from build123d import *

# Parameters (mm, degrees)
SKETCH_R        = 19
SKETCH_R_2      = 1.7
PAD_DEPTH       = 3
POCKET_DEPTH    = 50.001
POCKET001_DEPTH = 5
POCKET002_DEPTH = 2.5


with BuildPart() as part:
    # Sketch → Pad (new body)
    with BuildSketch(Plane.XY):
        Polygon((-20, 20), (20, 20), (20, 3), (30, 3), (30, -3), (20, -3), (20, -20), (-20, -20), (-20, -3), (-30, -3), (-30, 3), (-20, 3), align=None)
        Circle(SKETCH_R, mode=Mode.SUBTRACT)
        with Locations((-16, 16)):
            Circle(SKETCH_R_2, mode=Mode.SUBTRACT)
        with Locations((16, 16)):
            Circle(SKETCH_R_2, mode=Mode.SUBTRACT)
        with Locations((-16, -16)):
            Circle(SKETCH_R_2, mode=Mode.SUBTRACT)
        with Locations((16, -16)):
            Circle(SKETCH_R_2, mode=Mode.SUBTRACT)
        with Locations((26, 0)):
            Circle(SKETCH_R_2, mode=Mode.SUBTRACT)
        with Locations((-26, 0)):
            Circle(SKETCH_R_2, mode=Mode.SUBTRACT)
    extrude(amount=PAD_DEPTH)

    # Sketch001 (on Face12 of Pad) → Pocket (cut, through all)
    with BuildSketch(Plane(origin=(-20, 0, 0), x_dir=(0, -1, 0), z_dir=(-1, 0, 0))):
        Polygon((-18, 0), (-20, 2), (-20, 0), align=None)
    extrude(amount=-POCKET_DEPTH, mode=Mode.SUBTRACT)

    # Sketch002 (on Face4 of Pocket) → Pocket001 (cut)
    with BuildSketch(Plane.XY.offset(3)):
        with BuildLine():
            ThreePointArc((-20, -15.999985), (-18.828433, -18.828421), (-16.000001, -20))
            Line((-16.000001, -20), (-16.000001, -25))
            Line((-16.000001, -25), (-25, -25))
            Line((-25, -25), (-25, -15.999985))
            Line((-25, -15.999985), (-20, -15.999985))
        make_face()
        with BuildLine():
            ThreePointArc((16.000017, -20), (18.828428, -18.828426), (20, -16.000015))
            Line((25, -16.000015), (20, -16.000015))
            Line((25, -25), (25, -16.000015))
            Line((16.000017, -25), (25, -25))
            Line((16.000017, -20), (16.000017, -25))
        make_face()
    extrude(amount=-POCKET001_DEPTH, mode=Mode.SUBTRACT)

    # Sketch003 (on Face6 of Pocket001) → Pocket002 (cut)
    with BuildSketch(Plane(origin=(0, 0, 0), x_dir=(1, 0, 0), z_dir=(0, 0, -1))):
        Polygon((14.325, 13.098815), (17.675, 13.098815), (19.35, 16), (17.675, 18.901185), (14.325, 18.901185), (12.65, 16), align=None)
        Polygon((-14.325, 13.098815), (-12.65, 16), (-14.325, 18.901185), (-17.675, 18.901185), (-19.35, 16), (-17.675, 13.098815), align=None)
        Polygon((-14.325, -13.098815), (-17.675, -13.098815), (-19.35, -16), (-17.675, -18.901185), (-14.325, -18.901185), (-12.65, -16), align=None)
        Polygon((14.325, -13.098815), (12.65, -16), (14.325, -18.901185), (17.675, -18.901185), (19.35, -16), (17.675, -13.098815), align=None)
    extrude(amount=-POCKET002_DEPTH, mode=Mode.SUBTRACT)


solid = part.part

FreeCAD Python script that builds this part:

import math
import FreeCAD as App
import Part
import Sketcher

V = App.Vector
Q = App.Units.Quantity

doc = App.newDocument("Part")
params = doc.addObject("Spreadsheet::Sheet", "Params")
for row, (alias, value) in enumerate([
    ("sketch1_diameter", "38 mm"),
    ("sketch1_diameter2", "3.4 mm"),
    ("sketch1_width", "40 mm"),
    ("sketch1_width2", "10 mm"),
    ("sketch1_height", "17 mm"),
    ("pad1_length", "3 mm"),
    ("sketch2_width", "2 mm"),
    ("sketch3_radius", "4 mm"),
    ("sketch3_width", "5 mm"),
    ("pocket2_length", "5 mm"),
    ("sketch4_width", "3.35 mm"),
    ("pocket3_length", "2.5 mm"),
], start=1):
    params.set(f"A{row}", alias)
    params.set(f"B{row}", "=" + value)
    params.setAlias(f"B{row}", alias)

body = doc.addObject("PartDesign::Body", "Body")

sketch1 = body.newObject("Sketcher::SketchObject", "Sketch")
sketch1.AttachmentSupport = (doc.getObject("XY_Plane"), [""])
sketch1.MapMode = "FlatFace"
sketch1.addGeometry([
    Part.LineSegment(V(20, 20, 0), V(-20, 20, 0)),
    Part.LineSegment(V(-20, 20, 0), V(-20, 3, 0)),
    Part.LineSegment(V(-20, 3, 0), V(-30, 3, 0)),
    Part.LineSegment(V(-30, 3, 0), V(-30, -3, 0)),
    Part.LineSegment(V(-30, -3, 0), V(-20, -3, 0)),
    Part.LineSegment(V(-20, -3, 0), V(-20, -20, 0)),
    Part.LineSegment(V(-20, -20, 0), V(20, -20, 0)),
    Part.LineSegment(V(20, -20, 0), V(20, -3, 0)),
    Part.LineSegment(V(20, -3, 0), V(30, -3, 0)),
    Part.LineSegment(V(30, -3, 0), V(30, 3, 0)),
    Part.LineSegment(V(30, 3, 0), V(20, 3, 0)),
    Part.LineSegment(V(20, 3, 0), V(20, 20, 0)),
    Part.Circle(V(16, -16, 0), V(0, 0, 1), 1.7),
    Part.Circle(V(-16, -16, 0), V(0, 0, 1), 1.7),
    Part.Circle(V(26, 0, 0), V(0, 0, 1), 1.7),
    Part.Circle(V(16, 16, 0), V(0, 0, 1), 1.7),
    Part.Circle(V(0, 0, 0), V(0, 0, 1), 19),
    Part.Circle(V(-26, 0, 0), V(0, 0, 1), 1.7),
    Part.Circle(V(-16, 16, 0), V(0, 0, 1), 1.7),
], False)
sketch1.addConstraint([
    Sketcher.Constraint("Coincident", 0, 2, 1, 1),
    Sketcher.Constraint("Coincident", 1, 2, 2, 1),
    Sketcher.Constraint("Coincident", 2, 2, 3, 1),
    Sketcher.Constraint("Coincident", 3, 2, 4, 1),
    Sketcher.Constraint("Coincident", 4, 2, 5, 1),
    Sketcher.Constraint("Coincident", 5, 2, 6, 1),
    Sketcher.Constraint("Coincident", 6, 2, 7, 1),
    Sketcher.Constraint("Coincident", 7, 2, 8, 1),
    Sketcher.Constraint("Coincident", 8, 2, 9, 1),
    Sketcher.Constraint("Coincident", 9, 2, 10, 1),
    Sketcher.Constraint("Coincident", 10, 2, 11, 1),
    Sketcher.Constraint("Coincident", 11, 2, 0, 1),
    Sketcher.Constraint("Horizontal", 0),
    Sketcher.Constraint("Vertical", 1),
    Sketcher.Constraint("Horizontal", 2),
    Sketcher.Constraint("Vertical", 3),
    Sketcher.Constraint("Horizontal", 4),
    Sketcher.Constraint("Vertical", 5),
    Sketcher.Constraint("Horizontal", 6),
    Sketcher.Constraint("Vertical", 7),
    Sketcher.Constraint("Horizontal", 8),
    Sketcher.Constraint("Vertical", 9),
    Sketcher.Constraint("Horizontal", 10),
    Sketcher.Constraint("Vertical", 11),
    Sketcher.Constraint("Coincident", 16, 3, -1, 1),
    Sketcher.Constraint("Equal", 12, 13),
    Sketcher.Constraint("Equal", 13, 14),
    Sketcher.Constraint("Equal", 14, 15),
    Sketcher.Constraint("Equal", 15, 17),
    Sketcher.Constraint("Equal", 17, 18),
    Sketcher.Constraint("Symmetric", 13, 3, 15, 3, -1, 1),
    Sketcher.Constraint("Symmetric", 14, 3, 17, 3, -1, 1),
    Sketcher.Constraint("Symmetric", 12, 3, 18, 3, -1, 1),
    Sketcher.Constraint("Symmetric", 0, 2, 6, 2, -1, 1),
    Sketcher.Constraint("Symmetric", 2, 2, 8, 2, -1, 1),
    Sketcher.Constraint("Symmetric", 4, 2, 10, 2, -1, 1),
    Sketcher.Constraint("Symmetric", 12, 3, 13, 3, -2),
    Sketcher.Constraint("Symmetric", 4, 2, 7, 2, -2),
    Sketcher.Constraint("PointOnObject", 14, 3, -1),
    Sketcher.Constraint("Diameter", 16, 38.0),
    Sketcher.Constraint("Diameter", 12, 3.4),
    Sketcher.Constraint("DistanceX", 0, 2, 0, 1, 40.0),
    Sketcher.Constraint("DistanceX", 2, 2, 2, 1, 10.0),
    Sketcher.Constraint("DistanceY", 1, 2, 1, 1, 17.0),
    Sketcher.Constraint("DistanceY", 3, 2, 3, 1, 6.0),
    Sketcher.Constraint("DistanceX", -1, 1, 12, 3, 16.0),
    Sketcher.Constraint("DistanceY", 12, 3, -1, 1, 16.0),
    Sketcher.Constraint("DistanceX", -1, 1, 14, 3, 26.0),
])
sketch1.setExpression("Constraints[39]", "Params.sketch1_diameter")
sketch1.setExpression("Constraints[40]", "Params.sketch1_diameter2")
sketch1.setExpression("Constraints[41]", "Params.sketch1_width")
sketch1.setExpression("Constraints[42]", "Params.sketch1_width2")
sketch1.setExpression("Constraints[43]", "Params.sketch1_height")
pad1 = body.newObject("PartDesign::Pad", "Pad")
pad1.Profile = sketch1
pad1.setExpression("Length", "Params.pad1_length")

sketch2 = body.newObject("Sketcher::SketchObject", "Sketch001")
sketch2.AttachmentSupport = (doc.getObject("YZ_Plane"), [""])
sketch2.MapMode = "FlatFace"
sketch2.AttachmentOffset = App.Placement(V(0, 0, -20), App.Rotation())
sketch2.addGeometry([
    Part.LineSegment(V(18, 0, 0), V(20, 2, 0)),
    Part.LineSegment(V(20, 2, 0), V(20, 0, 0)),
    Part.LineSegment(V(20, 0, 0), V(18, 0, 0)),
], False)
sketch2.addConstraint([
    Sketcher.Constraint("Coincident", 0, 2, 1, 1),
    Sketcher.Constraint("Coincident", 1, 2, 2, 1),
    Sketcher.Constraint("Coincident", 2, 2, 0, 1),
    Sketcher.Constraint("Vertical", 1),
    Sketcher.Constraint("Horizontal", 2),
    Sketcher.Constraint("PointOnObject", 1, 2, -1),
    Sketcher.Constraint("Equal", 2, 1),
    Sketcher.Constraint("DistanceX", 2, 2, 2, 1, 2.0),
    Sketcher.Constraint("DistanceX", -1, 1, 0, 2, 20.0),
])
sketch2.setExpression("Constraints[7]", "Params.sketch2_width")
pocket1 = body.newObject("PartDesign::Pocket", "Pocket")
pocket1.Profile = sketch2
pocket1.Type = "ThroughAll"
pocket1.Reversed = True

sketch3 = body.newObject("Sketcher::SketchObject", "Sketch002")
sketch3.AttachmentSupport = (doc.getObject("XY_Plane"), [""])
sketch3.MapMode = "FlatFace"
sketch3.AttachmentOffset = App.Placement(V(0, 0, 3), App.Rotation())
sketch3.addGeometry([
    Part.ArcOfCircle(Part.Circle(V(-16, -16, 0), V(0, 0, 1), 4), math.radians(179.999791), math.radians(269.99998)),
    Part.LineSegment(V(-20, -15.999985, 0), V(-25, -15.999985, 0)),
    Part.LineSegment(V(-25, -15.999985, 0), V(-25, -25, 0)),
    Part.LineSegment(V(-25, -25, 0), V(-16.000001, -25, 0)),
    Part.LineSegment(V(-16.000001, -25, 0), V(-16.000001, -20, 0)),
    Part.ArcOfCircle(Part.Circle(V(16, -16, 0), V(0, 0, 1), 4), math.radians(-89.99975), math.radians(-0.000221)),
    Part.LineSegment(V(16.000017, -20, 0), V(16.000017, -25, 0)),
    Part.LineSegment(V(16.000017, -25, 0), V(25, -25, 0)),
    Part.LineSegment(V(25, -25, 0), V(25, -16.000015, 0)),
    Part.LineSegment(V(25, -16.000015, 0), V(20, -16.000015, 0)),
], False)
sketch3.addConstraint([
    Sketcher.Constraint("Coincident", 0, 1, 1, 1),
    Sketcher.Constraint("Coincident", 1, 2, 2, 1),
    Sketcher.Constraint("Coincident", 2, 2, 3, 1),
    Sketcher.Constraint("Coincident", 3, 2, 4, 1),
    Sketcher.Constraint("Coincident", 4, 2, 0, 2),
    Sketcher.Constraint("Coincident", 5, 1, 6, 1),
    Sketcher.Constraint("Coincident", 6, 2, 7, 1),
    Sketcher.Constraint("Coincident", 7, 2, 8, 1),
    Sketcher.Constraint("Coincident", 8, 2, 9, 1),
    Sketcher.Constraint("Coincident", 9, 2, 5, 2),
    Sketcher.Constraint("Horizontal", 1),
    Sketcher.Constraint("Vertical", 2),
    Sketcher.Constraint("Horizontal", 3),
    Sketcher.Constraint("Vertical", 4),
    Sketcher.Constraint("Vertical", 6),
    Sketcher.Constraint("Horizontal", 7),
    Sketcher.Constraint("Vertical", 8),
    Sketcher.Constraint("Horizontal", 9),
    Sketcher.Constraint("Equal", 0, 5),
    Sketcher.Constraint("Symmetric", 0, 3, 5, 3, -2),
    Sketcher.Constraint("Symmetric", 2, 2, 7, 2, -2),
    Sketcher.Constraint("Vertical", 0, 3, 3, 2),
    Sketcher.Constraint("Equal", 9, 4),
    Sketcher.Constraint("Equal", 7, 8),
    Sketcher.Constraint("Radius", 0, 4.0),
    Sketcher.Constraint("DistanceX", 1, 2, 1, 1, 5.0),
    Sketcher.Constraint("DistanceX", 0, 3, -1, 1, 16.0),
    Sketcher.Constraint("DistanceY", 0, 3, -1, 1, 16.0),
    Sketcher.Constraint("DistanceX", 7, 1, 7, 2, 8.999983),
    Sketcher.Constraint("DistanceY", 2, 2, 2, 1, 9.000015),
])
sketch3.setExpression("Constraints[24]", "Params.sketch3_radius")
sketch3.setExpression("Constraints[25]", "Params.sketch3_width")
pocket2 = body.newObject("PartDesign::Pocket", "Pocket001")
pocket2.Profile = sketch3
pocket2.setExpression("Length", "Params.pocket2_length")

sketch4 = body.newObject("Sketcher::SketchObject", "Sketch003")
sketch4.AttachmentSupport = (doc.getObject("XY_Plane"), [""])
sketch4.MapMode = "FlatFace"
sketch4.addGeometry([
    Part.LineSegment(V(14.325, -13.098815, 0), V(17.675, -13.098815, 0)),
    Part.LineSegment(V(17.675, -13.098815, 0), V(19.35, -16, 0)),
    Part.LineSegment(V(19.35, -16, 0), V(17.675, -18.901185, 0)),
    Part.LineSegment(V(17.675, -18.901185, 0), V(14.325, -18.901185, 0)),
    Part.LineSegment(V(14.325, -18.901185, 0), V(12.65, -16, 0)),
    Part.LineSegment(V(12.65, -16, 0), V(14.325, -13.098815, 0)),
    Part.LineSegment(V(-14.325, -13.098815, 0), V(-12.65, -16, 0)),
    Part.LineSegment(V(-12.65, -16, 0), V(-14.325, -18.901185, 0)),
    Part.LineSegment(V(-14.325, -18.901185, 0), V(-17.675, -18.901185, 0)),
    Part.LineSegment(V(-17.675, -18.901185, 0), V(-19.35, -16, 0)),
    Part.LineSegment(V(-19.35, -16, 0), V(-17.675, -13.098815, 0)),
    Part.LineSegment(V(-17.675, -13.098815, 0), V(-14.325, -13.098815, 0)),
    Part.LineSegment(V(-14.325, 13.098815, 0), V(-17.675, 13.098815, 0)),
    Part.LineSegment(V(-17.675, 13.098815, 0), V(-19.35, 16, 0)),
    Part.LineSegment(V(-19.35, 16, 0), V(-17.675, 18.901185, 0)),
    Part.LineSegment(V(-17.675, 18.901185, 0), V(-14.325, 18.901185, 0)),
    Part.LineSegment(V(-14.325, 18.901185, 0), V(-12.65, 16, 0)),
    Part.LineSegment(V(-12.65, 16, 0), V(-14.325, 13.098815, 0)),
    Part.LineSegment(V(14.325, 13.098815, 0), V(12.65, 16, 0)),
    Part.LineSegment(V(12.65, 16, 0), V(14.325, 18.901185, 0)),
    Part.LineSegment(V(14.325, 18.901185, 0), V(17.675, 18.901185, 0)),
    Part.LineSegment(V(17.675, 18.901185, 0), V(19.35, 16, 0)),
    Part.LineSegment(V(19.35, 16, 0), V(17.675, 13.098815, 0)),
    Part.LineSegment(V(17.675, 13.098815, 0), V(14.325, 13.098815, 0)),
], False)
sketch4.addConstraint([
    Sketcher.Constraint("Coincident", 0, 2, 1, 1),
    Sketcher.Constraint("Coincident", 1, 2, 2, 1),
    Sketcher.Constraint("Coincident", 2, 2, 3, 1),
    Sketcher.Constraint("Coincident", 3, 2, 4, 1),
    Sketcher.Constraint("Coincident", 4, 2, 5, 1),
    Sketcher.Constraint("Coincident", 5, 2, 0, 1),
    Sketcher.Constraint("Coincident", 6, 2, 7, 1),
    Sketcher.Constraint("Coincident", 7, 2, 8, 1),
    Sketcher.Constraint("Coincident", 8, 2, 9, 1),
    Sketcher.Constraint("Coincident", 9, 2, 10, 1),
    Sketcher.Constraint("Coincident", 10, 2, 11, 1),
    Sketcher.Constraint("Coincident", 11, 2, 6, 1),
    Sketcher.Constraint("Coincident", 12, 2, 13, 1),
    Sketcher.Constraint("Coincident", 13, 2, 14, 1),
    Sketcher.Constraint("Coincident", 14, 2, 15, 1),
    Sketcher.Constraint("Coincident", 15, 2, 16, 1),
    Sketcher.Constraint("Coincident", 16, 2, 17, 1),
    Sketcher.Constraint("Coincident", 17, 2, 12, 1),
    Sketcher.Constraint("Coincident", 18, 2, 19, 1),
    Sketcher.Constraint("Coincident", 19, 2, 20, 1),
    Sketcher.Constraint("Coincident", 20, 2, 21, 1),
    Sketcher.Constraint("Coincident", 21, 2, 22, 1),
    Sketcher.Constraint("Coincident", 22, 2, 23, 1),
    Sketcher.Constraint("Coincident", 23, 2, 18, 1),
    Sketcher.Constraint("Horizontal", 0),
    Sketcher.Constraint("Horizontal", 3),
    Sketcher.Constraint("Horizontal", 8),
    Sketcher.Constraint("Horizontal", 11),
    Sketcher.Constraint("Horizontal", 12),
    Sketcher.Constraint("Horizontal", 15),
    Sketcher.Constraint("Horizontal", 20),
    Sketcher.Constraint("Horizontal", 23),
    Sketcher.Constraint("Symmetric", 0, 2, 12, 2, -1, 1),
    Sketcher.Constraint("Symmetric", 1, 2, 13, 2, -1, 1),
    Sketcher.Constraint("Symmetric", 2, 2, 14, 2, -1, 1),
    Sketcher.Constraint("Symmetric", 4, 2, 16, 2, -1, 1),
    Sketcher.Constraint("Symmetric", 6, 2, 18, 2, -1, 1),
    Sketcher.Constraint("Symmetric", 7, 2, 19, 2, -1, 1),
    Sketcher.Constraint("Symmetric", 9, 2, 21, 2, -1, 1),
    Sketcher.Constraint("Symmetric", 10, 2, 22, 2, -1, 1),
    Sketcher.Constraint("Symmetric", 4, 2, 6, 2, -2),
    Sketcher.Constraint("Symmetric", 3, 2, 7, 2, -2),
    Sketcher.Constraint("Symmetric", 1, 2, 9, 2, -2),
    Sketcher.Constraint("Symmetric", 0, 2, 10, 2, -2),
    Sketcher.Constraint("Parallel", 1, 4),
    Sketcher.Constraint("Parallel", 2, 5),
    Sketcher.Constraint("Parallel", 4, 6),
    Sketcher.Constraint("Parallel", 5, 7),
    Sketcher.Constraint("Parallel", 6, 9),
    Sketcher.Constraint("Parallel", 13, 16),
    Sketcher.Constraint("Parallel", 14, 17),
    Sketcher.Constraint("Parallel", 16, 18),
    Sketcher.Constraint("Parallel", 18, 21),
    Sketcher.Constraint("Horizontal", 1, 2, 4, 2),
    Sketcher.Constraint("Vertical", 0, 2, 2, 2),
    Sketcher.Constraint("Angle", 1, Q("-59.999999 deg")),
    Sketcher.Constraint("DistanceY", 1, 2, -1, 1, 16.0),
    Sketcher.Constraint("DistanceX", 7, 2, 2, 2, 32.0),
    Sketcher.Constraint("DistanceX", 0, 1, 0, 2, 3.35),
    Sketcher.Constraint("DistanceX", 4, 2, 1, 2, 6.7),
])
sketch4.setExpression("Constraints[58]", "Params.sketch4_width")
pocket3 = body.newObject("PartDesign::Pocket", "Pocket002")
pocket3.Profile = sketch4
pocket3.setExpression("Length", "Params.pocket3_length")
pocket3.Reversed = True

doc.recompute()
